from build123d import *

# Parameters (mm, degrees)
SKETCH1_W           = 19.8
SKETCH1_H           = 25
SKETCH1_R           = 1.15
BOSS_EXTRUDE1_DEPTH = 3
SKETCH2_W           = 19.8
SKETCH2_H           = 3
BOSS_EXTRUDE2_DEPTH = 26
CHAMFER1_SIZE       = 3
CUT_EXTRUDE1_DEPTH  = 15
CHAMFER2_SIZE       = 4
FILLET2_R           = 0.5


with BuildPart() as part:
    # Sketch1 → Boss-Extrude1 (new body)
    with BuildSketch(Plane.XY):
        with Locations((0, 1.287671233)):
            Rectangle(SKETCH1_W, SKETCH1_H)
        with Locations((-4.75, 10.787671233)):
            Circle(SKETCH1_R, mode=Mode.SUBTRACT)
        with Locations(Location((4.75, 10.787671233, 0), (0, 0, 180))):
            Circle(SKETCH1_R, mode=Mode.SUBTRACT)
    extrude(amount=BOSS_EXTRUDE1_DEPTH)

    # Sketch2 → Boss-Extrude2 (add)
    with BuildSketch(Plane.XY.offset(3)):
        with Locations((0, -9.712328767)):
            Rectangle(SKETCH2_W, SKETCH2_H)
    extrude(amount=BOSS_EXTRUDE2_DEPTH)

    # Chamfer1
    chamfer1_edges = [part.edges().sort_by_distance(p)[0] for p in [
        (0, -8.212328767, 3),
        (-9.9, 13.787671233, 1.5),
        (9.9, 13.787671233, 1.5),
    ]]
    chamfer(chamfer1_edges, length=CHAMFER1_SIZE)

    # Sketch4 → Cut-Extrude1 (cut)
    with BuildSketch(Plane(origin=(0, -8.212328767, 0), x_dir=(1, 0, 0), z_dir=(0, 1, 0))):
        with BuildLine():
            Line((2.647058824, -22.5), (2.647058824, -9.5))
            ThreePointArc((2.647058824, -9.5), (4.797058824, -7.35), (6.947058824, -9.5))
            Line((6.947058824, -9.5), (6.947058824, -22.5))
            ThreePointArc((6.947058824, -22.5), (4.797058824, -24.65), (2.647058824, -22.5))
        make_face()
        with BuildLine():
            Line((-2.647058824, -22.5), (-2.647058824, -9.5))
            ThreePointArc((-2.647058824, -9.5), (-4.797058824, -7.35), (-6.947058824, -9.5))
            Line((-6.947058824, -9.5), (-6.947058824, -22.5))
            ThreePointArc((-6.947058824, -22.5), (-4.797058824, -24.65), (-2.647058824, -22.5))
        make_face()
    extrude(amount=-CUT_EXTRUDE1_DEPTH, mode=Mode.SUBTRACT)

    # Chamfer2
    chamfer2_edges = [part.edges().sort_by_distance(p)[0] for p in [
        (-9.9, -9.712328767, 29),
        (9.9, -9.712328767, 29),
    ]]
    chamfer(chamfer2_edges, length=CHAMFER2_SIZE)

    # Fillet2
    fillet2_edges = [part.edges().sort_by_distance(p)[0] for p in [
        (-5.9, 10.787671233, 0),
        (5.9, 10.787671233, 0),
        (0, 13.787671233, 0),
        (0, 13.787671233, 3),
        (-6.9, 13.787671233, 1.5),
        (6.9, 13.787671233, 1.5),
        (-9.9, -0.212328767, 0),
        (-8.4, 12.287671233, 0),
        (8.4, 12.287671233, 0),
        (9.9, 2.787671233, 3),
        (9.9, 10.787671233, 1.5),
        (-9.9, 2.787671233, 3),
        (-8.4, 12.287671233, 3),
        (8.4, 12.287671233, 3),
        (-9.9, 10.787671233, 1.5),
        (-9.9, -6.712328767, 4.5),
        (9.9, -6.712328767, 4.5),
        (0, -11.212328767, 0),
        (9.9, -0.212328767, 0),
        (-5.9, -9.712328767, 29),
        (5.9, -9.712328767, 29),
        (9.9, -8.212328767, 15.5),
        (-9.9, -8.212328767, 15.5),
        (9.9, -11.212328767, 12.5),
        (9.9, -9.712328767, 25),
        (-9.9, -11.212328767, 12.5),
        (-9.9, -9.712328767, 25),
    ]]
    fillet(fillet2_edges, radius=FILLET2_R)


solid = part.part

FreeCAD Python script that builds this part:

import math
import FreeCAD as App
import Part
import Sketcher
Q = App.Units.Quantity


def edges_at(feature, points):
    """Names of the edges that pass closest to the given points."""
    edges = feature.Shape.Edges
    near = lambda p: min(range(len(edges)), key=lambda i: edges[i].distToShape(Part.Vertex(*p))[0])
    return sorted({f"Edge{near(p) + 1}" for p in points})

doc = App.newDocument("Part")
body = doc.addObject("PartDesign::Body", "Body")

# Sketch on XY plane
sketch1 = body.newObject("Sketcher::SketchObject", "Sketch")
sketch1.AttachmentSupport = (doc.getObject("XY_Plane"), [""])
sketch1.MapMode = "FlatFace"
sketch1.addGeometry(Part.LineSegment(App.Vector(-9.9, 13.8, 0), App.Vector(-9.9, -11.2, 0)), False)
sketch1.addGeometry(Part.LineSegment(App.Vector(-9.9, -11.2, 0), App.Vector(9.9, -11.2, 0)), False)
sketch1.addGeometry(Part.LineSegment(App.Vector(9.9, -11.2, 0), App.Vector(9.9, 13.8, 0)), False)
sketch1.addGeometry(Part.LineSegment(App.Vector(9.9, 13.8, 0), App.Vector(-9.9, 13.8, 0)), False)
sketch1.addGeometry(Part.Circle(App.Vector(-4.8, 10.8, 0), App.Vector(0, 0, 1), 1.1), False)
sketch1.addGeometry(Part.Circle(App.Vector(4.8, 10.8, 0), App.Vector(0, 0, 1), 1.1), False)
sketch1.addConstraint(Sketcher.Constraint("Coincident", 0, 2, 1, 1))
sketch1.addConstraint(Sketcher.Constraint("Coincident", 1, 2, 2, 1))
sketch1.addConstraint(Sketcher.Constraint("Coincident", 2, 2, 3, 1))
sketch1.addConstraint(Sketcher.Constraint("Coincident", 3, 2, 0, 1))
sketch1.addConstraint(Sketcher.Constraint("Vertical", 0))
sketch1.addConstraint(Sketcher.Constraint("Horizontal", 1))
sketch1.addConstraint(Sketcher.Constraint("Vertical", 2))
sketch1.addConstraint(Sketcher.Constraint("Horizontal", 3))
sketch1.addConstraint(Sketcher.Constraint("Equal", 4, 5))
sketch1.addConstraint(Sketcher.Constraint("Symmetric", 4, 3, 5, 3, -2))
sketch1.addConstraint(Sketcher.Constraint("Diameter", 4, Q("2.3 mm")))
sketch1.addConstraint(Sketcher.Constraint("DistanceY", 0, 2, 0, 1, Q("25 mm")))
sketch1.addConstraint(Sketcher.Constraint("DistanceX", 1, 1, 1, 2, Q("19.8 mm")))
sketch1.addConstraint(Sketcher.Constraint("DistanceY", 0, 2, 4, 3, Q("22 mm")))
sketch1.addConstraint(Sketcher.Constraint("DistanceX", 0, 2, -1, 1, Q("9.9 mm")))
sketch1.addConstraint(Sketcher.Constraint("DistanceX", 4, 3, 5, 3, Q("9.5 mm")))
sketch1.addConstraint(Sketcher.Constraint("DistanceY", -1, 1, 4, 3, Q("10.787671 mm")))
pad1 = body.newObject("PartDesign::Pad", "Pad")
pad1.Profile = sketch1
pad1.Length = 3

# Sketch on XY plane
sketch2 = body.newObject("Sketcher::SketchObject", "Sketch001")
sketch2.AttachmentSupport = (doc.getObject("XY_Plane"), [""])
sketch2.MapMode = "FlatFace"
sketch2.AttachmentOffset = App.Placement(App.Vector(0, 0, 3), App.Rotation())
sketch2.addGeometry(Part.LineSegment(App.Vector(-9.9, -8.2, 0), App.Vector(-9.9, -11.2, 0)), False)
sketch2.addGeometry(Part.LineSegment(App.Vector(-9.9, -11.2, 0), App.Vector(9.9, -11.2, 0)), False)
sketch2.addGeometry(Part.LineSegment(App.Vector(9.9, -11.2, 0), App.Vector(9.9, -8.2, 0)), False)
sketch2.addGeometry(Part.LineSegment(App.Vector(9.9, -8.2, 0), App.Vector(-9.9, -8.2, 0)), False)
sketch2.addConstraint(Sketcher.Constraint("Coincident", 0, 2, 1, 1))
sketch2.addConstraint(Sketcher.Constraint("Coincident", 1, 2, 2, 1))
sketch2.addConstraint(Sketcher.Constraint("Coincident", 2, 2, 3, 1))
sketch2.addConstraint(Sketcher.Constraint("Coincident", 3, 2, 0, 1))
sketch2.addConstraint(Sketcher.Constraint("Vertical", 0))
sketch2.addConstraint(Sketcher.Constraint("Horizontal", 1))
sketch2.addConstraint(Sketcher.Constraint("Vertical", 2))
sketch2.addConstraint(Sketcher.Constraint("Horizontal", 3))
sketch2.addConstraint(Sketcher.Constraint("DistanceY", 0, 2, 0, 1, Q("3 mm")))
sketch2.addConstraint(Sketcher.Constraint("DistanceX", 1, 1, 1, 2, Q("19.8 mm")))
sketch2.addConstraint(Sketcher.Constraint("DistanceX", 0, 2, -1, 1, Q("9.9 mm")))
sketch2.addConstraint(Sketcher.Constraint("DistanceY", 0, 2, -1, 1, Q("11.212329 mm")))
pad2 = body.newObject("PartDesign::Pad", "Pad001")
pad2.Profile = sketch2
pad2.Length = 26
doc.recompute()

chamfer = body.newObject("PartDesign::Chamfer", "Chamfer")
chamfer.Base = (pad2, edges_at(pad2, [(0, -8.212, 3), (-9.9, 13.788, 1.5), (9.9, 13.788, 1.5)]))
chamfer.Size = 3

# Sketch on XZ plane
sketch3 = body.newObject("Sketcher::SketchObject", "Sketch002")
sketch3.AttachmentSupport = (doc.getObject("XZ_Plane"), [""])
sketch3.MapMode = "FlatFace"
sketch3.AttachmentOffset = App.Placement(App.Vector(0, 0, 8.212329), App.Rotation())
sketch3.addGeometry(Part.LineSegment(App.Vector(2.6, 9.5, 0), App.Vector(2.6, 22.5, 0)), False)
sketch3.addGeometry(Part.ArcOfCircle(Part.Circle(App.Vector(4.8, 22.5, 0), App.Vector(0, 0, 1), 2.1), math.radians(0), math.radians(180)), False)
sketch3.addGeometry(Part.LineSegment(App.Vector(6.9, 22.5, 0), App.Vector(6.9, 9.5, 0)), False)
sketch3.addGeometry(Part.ArcOfCircle(Part.Circle(App.Vector(4.8, 9.5, 0), App.Vector(0, 0, 1), 2.1), math.radians(180), math.radians(360)), False)
sketch3.addGeometry(Part.LineSegment(App.Vector(-2.6, 22.5, 0), App.Vector(-2.6, 9.5, 0)), False)
sketch3.addGeometry(Part.ArcOfCircle(Part.Circle(App.Vector(-4.8, 9.5, 0), App.Vector(0, 0, 1), 2.1), math.radians(180), math.radians(360)), False)
sketch3.addGeometry(Part.LineSegment(App.Vector(-6.9, 9.5, 0), App.Vector(-6.9, 22.5, 0)), False)
sketch3.addGeometry(Part.ArcOfCircle(Part.Circle(App.Vector(-4.8, 22.5, 0), App.Vector(0, 0, 1), 2.1), math.radians(0), math.radians(180)), False)
sketch3.addConstraint(Sketcher.Constraint("Tangent", 0, 2, 1, 2))
sketch3.addConstraint(Sketcher.Constraint("Tangent", 1, 1, 2, 1))
sketch3.addConstraint(Sketcher.Constraint("Tangent", 2, 2, 3, 2))
sketch3.addConstraint(Sketcher.Constraint("Tangent", 3, 1, 0, 1))
sketch3.addConstraint(Sketcher.Constraint("Tangent", 4, 2, 5, 2))
sketch3.addConstraint(Sketcher.Constraint("Tangent", 5, 1, 6, 1))
sketch3.addConstraint(Sketcher.Constraint("Tangent", 6, 2, 7, 2))
sketch3.addConstraint(Sketcher.Constraint("Tangent", 7, 1, 4, 1))
sketch3.addConstraint(Sketcher.Constraint("Vertical", 0))
sketch3.addConstraint(Sketcher.Constraint("Vertical", 2))
sketch3.addConstraint(Sketcher.Constraint("Vertical", 4))
sketch3.addConstraint(Sketcher.Constraint("Vertical", 6))
sketch3.addConstraint(Sketcher.Constraint("Equal", 3, 5))
sketch3.addConstraint(Sketcher.Constraint("Symmetric", 3, 3, 5, 3, -2))
sketch3.addConstraint(Sketcher.Constraint("Horizontal", 1, 3, 7, 3))
sketch3.addConstraint(Sketcher.Constraint("DistanceY", 0, 1, 0, 2, Q("13 mm")))
sketch3.addConstraint(Sketcher.Constraint("Radius", 1, Q("2.15 mm")))
sketch3.addConstraint(Sketcher.Constraint("DistanceY", -1, 1, 1, 3, Q("22.5 mm")))
sketch3.addConstraint(Sketcher.Constraint("DistanceX", -1, 1, 1, 3, Q("4.797059 mm")))
pocket1 = body.newObject("PartDesign::Pocket", "Pocket")
pocket1.Profile = sketch3
pocket1.Length = 15
pocket1.Reversed = True
doc.recompute()

chamfer2 = body.newObject("PartDesign::Chamfer", "Chamfer001")
chamfer2.Base = (pocket1, edges_at(pocket1, [(-9.9, -9.712, 29), (9.9, -9.712, 29)]))
chamfer2.Size = 4
doc.recompute()

fillet = body.newObject("PartDesign::Fillet", "Fillet")
fillet.Base = (chamfer2, edges_at(chamfer2, [
    (-5.9, 10.788, 0),
    (5.9, 10.788, 0),
    (0, 13.788, 0),
    (0, 13.788, 3),
    (-6.9, 13.788, 1.5),
    (6.9, 13.788, 1.5),
    (-9.9, -0.212, 0),
    (-8.4, 12.288, 0),
    (8.4, 12.288, 0),
    (9.9, 2.788, 3),
    (9.9, 10.788, 1.5),
    (-9.9, 2.788, 3),
    (-8.4, 12.288, 3),
    (8.4, 12.288, 3),
    (-9.9, 10.788, 1.5),
    (-9.9, -6.712, 4.5),
    (9.9, -6.712, 4.5),
    (0, -11.212, 0),
    (9.9, -0.212, 0),
    (-5.9, -9.712, 29),
    (5.9, -9.712, 29),
    (9.9, -8.212, 15.5),
    (-9.9, -8.212, 15.5),
    (9.9, -11.212, 12.5),
    (9.9, -9.712, 25),
    (-9.9, -11.212, 12.5),
    (-9.9, -9.712, 25),
]))
fillet.Radius = 0.5

doc.recompute()
